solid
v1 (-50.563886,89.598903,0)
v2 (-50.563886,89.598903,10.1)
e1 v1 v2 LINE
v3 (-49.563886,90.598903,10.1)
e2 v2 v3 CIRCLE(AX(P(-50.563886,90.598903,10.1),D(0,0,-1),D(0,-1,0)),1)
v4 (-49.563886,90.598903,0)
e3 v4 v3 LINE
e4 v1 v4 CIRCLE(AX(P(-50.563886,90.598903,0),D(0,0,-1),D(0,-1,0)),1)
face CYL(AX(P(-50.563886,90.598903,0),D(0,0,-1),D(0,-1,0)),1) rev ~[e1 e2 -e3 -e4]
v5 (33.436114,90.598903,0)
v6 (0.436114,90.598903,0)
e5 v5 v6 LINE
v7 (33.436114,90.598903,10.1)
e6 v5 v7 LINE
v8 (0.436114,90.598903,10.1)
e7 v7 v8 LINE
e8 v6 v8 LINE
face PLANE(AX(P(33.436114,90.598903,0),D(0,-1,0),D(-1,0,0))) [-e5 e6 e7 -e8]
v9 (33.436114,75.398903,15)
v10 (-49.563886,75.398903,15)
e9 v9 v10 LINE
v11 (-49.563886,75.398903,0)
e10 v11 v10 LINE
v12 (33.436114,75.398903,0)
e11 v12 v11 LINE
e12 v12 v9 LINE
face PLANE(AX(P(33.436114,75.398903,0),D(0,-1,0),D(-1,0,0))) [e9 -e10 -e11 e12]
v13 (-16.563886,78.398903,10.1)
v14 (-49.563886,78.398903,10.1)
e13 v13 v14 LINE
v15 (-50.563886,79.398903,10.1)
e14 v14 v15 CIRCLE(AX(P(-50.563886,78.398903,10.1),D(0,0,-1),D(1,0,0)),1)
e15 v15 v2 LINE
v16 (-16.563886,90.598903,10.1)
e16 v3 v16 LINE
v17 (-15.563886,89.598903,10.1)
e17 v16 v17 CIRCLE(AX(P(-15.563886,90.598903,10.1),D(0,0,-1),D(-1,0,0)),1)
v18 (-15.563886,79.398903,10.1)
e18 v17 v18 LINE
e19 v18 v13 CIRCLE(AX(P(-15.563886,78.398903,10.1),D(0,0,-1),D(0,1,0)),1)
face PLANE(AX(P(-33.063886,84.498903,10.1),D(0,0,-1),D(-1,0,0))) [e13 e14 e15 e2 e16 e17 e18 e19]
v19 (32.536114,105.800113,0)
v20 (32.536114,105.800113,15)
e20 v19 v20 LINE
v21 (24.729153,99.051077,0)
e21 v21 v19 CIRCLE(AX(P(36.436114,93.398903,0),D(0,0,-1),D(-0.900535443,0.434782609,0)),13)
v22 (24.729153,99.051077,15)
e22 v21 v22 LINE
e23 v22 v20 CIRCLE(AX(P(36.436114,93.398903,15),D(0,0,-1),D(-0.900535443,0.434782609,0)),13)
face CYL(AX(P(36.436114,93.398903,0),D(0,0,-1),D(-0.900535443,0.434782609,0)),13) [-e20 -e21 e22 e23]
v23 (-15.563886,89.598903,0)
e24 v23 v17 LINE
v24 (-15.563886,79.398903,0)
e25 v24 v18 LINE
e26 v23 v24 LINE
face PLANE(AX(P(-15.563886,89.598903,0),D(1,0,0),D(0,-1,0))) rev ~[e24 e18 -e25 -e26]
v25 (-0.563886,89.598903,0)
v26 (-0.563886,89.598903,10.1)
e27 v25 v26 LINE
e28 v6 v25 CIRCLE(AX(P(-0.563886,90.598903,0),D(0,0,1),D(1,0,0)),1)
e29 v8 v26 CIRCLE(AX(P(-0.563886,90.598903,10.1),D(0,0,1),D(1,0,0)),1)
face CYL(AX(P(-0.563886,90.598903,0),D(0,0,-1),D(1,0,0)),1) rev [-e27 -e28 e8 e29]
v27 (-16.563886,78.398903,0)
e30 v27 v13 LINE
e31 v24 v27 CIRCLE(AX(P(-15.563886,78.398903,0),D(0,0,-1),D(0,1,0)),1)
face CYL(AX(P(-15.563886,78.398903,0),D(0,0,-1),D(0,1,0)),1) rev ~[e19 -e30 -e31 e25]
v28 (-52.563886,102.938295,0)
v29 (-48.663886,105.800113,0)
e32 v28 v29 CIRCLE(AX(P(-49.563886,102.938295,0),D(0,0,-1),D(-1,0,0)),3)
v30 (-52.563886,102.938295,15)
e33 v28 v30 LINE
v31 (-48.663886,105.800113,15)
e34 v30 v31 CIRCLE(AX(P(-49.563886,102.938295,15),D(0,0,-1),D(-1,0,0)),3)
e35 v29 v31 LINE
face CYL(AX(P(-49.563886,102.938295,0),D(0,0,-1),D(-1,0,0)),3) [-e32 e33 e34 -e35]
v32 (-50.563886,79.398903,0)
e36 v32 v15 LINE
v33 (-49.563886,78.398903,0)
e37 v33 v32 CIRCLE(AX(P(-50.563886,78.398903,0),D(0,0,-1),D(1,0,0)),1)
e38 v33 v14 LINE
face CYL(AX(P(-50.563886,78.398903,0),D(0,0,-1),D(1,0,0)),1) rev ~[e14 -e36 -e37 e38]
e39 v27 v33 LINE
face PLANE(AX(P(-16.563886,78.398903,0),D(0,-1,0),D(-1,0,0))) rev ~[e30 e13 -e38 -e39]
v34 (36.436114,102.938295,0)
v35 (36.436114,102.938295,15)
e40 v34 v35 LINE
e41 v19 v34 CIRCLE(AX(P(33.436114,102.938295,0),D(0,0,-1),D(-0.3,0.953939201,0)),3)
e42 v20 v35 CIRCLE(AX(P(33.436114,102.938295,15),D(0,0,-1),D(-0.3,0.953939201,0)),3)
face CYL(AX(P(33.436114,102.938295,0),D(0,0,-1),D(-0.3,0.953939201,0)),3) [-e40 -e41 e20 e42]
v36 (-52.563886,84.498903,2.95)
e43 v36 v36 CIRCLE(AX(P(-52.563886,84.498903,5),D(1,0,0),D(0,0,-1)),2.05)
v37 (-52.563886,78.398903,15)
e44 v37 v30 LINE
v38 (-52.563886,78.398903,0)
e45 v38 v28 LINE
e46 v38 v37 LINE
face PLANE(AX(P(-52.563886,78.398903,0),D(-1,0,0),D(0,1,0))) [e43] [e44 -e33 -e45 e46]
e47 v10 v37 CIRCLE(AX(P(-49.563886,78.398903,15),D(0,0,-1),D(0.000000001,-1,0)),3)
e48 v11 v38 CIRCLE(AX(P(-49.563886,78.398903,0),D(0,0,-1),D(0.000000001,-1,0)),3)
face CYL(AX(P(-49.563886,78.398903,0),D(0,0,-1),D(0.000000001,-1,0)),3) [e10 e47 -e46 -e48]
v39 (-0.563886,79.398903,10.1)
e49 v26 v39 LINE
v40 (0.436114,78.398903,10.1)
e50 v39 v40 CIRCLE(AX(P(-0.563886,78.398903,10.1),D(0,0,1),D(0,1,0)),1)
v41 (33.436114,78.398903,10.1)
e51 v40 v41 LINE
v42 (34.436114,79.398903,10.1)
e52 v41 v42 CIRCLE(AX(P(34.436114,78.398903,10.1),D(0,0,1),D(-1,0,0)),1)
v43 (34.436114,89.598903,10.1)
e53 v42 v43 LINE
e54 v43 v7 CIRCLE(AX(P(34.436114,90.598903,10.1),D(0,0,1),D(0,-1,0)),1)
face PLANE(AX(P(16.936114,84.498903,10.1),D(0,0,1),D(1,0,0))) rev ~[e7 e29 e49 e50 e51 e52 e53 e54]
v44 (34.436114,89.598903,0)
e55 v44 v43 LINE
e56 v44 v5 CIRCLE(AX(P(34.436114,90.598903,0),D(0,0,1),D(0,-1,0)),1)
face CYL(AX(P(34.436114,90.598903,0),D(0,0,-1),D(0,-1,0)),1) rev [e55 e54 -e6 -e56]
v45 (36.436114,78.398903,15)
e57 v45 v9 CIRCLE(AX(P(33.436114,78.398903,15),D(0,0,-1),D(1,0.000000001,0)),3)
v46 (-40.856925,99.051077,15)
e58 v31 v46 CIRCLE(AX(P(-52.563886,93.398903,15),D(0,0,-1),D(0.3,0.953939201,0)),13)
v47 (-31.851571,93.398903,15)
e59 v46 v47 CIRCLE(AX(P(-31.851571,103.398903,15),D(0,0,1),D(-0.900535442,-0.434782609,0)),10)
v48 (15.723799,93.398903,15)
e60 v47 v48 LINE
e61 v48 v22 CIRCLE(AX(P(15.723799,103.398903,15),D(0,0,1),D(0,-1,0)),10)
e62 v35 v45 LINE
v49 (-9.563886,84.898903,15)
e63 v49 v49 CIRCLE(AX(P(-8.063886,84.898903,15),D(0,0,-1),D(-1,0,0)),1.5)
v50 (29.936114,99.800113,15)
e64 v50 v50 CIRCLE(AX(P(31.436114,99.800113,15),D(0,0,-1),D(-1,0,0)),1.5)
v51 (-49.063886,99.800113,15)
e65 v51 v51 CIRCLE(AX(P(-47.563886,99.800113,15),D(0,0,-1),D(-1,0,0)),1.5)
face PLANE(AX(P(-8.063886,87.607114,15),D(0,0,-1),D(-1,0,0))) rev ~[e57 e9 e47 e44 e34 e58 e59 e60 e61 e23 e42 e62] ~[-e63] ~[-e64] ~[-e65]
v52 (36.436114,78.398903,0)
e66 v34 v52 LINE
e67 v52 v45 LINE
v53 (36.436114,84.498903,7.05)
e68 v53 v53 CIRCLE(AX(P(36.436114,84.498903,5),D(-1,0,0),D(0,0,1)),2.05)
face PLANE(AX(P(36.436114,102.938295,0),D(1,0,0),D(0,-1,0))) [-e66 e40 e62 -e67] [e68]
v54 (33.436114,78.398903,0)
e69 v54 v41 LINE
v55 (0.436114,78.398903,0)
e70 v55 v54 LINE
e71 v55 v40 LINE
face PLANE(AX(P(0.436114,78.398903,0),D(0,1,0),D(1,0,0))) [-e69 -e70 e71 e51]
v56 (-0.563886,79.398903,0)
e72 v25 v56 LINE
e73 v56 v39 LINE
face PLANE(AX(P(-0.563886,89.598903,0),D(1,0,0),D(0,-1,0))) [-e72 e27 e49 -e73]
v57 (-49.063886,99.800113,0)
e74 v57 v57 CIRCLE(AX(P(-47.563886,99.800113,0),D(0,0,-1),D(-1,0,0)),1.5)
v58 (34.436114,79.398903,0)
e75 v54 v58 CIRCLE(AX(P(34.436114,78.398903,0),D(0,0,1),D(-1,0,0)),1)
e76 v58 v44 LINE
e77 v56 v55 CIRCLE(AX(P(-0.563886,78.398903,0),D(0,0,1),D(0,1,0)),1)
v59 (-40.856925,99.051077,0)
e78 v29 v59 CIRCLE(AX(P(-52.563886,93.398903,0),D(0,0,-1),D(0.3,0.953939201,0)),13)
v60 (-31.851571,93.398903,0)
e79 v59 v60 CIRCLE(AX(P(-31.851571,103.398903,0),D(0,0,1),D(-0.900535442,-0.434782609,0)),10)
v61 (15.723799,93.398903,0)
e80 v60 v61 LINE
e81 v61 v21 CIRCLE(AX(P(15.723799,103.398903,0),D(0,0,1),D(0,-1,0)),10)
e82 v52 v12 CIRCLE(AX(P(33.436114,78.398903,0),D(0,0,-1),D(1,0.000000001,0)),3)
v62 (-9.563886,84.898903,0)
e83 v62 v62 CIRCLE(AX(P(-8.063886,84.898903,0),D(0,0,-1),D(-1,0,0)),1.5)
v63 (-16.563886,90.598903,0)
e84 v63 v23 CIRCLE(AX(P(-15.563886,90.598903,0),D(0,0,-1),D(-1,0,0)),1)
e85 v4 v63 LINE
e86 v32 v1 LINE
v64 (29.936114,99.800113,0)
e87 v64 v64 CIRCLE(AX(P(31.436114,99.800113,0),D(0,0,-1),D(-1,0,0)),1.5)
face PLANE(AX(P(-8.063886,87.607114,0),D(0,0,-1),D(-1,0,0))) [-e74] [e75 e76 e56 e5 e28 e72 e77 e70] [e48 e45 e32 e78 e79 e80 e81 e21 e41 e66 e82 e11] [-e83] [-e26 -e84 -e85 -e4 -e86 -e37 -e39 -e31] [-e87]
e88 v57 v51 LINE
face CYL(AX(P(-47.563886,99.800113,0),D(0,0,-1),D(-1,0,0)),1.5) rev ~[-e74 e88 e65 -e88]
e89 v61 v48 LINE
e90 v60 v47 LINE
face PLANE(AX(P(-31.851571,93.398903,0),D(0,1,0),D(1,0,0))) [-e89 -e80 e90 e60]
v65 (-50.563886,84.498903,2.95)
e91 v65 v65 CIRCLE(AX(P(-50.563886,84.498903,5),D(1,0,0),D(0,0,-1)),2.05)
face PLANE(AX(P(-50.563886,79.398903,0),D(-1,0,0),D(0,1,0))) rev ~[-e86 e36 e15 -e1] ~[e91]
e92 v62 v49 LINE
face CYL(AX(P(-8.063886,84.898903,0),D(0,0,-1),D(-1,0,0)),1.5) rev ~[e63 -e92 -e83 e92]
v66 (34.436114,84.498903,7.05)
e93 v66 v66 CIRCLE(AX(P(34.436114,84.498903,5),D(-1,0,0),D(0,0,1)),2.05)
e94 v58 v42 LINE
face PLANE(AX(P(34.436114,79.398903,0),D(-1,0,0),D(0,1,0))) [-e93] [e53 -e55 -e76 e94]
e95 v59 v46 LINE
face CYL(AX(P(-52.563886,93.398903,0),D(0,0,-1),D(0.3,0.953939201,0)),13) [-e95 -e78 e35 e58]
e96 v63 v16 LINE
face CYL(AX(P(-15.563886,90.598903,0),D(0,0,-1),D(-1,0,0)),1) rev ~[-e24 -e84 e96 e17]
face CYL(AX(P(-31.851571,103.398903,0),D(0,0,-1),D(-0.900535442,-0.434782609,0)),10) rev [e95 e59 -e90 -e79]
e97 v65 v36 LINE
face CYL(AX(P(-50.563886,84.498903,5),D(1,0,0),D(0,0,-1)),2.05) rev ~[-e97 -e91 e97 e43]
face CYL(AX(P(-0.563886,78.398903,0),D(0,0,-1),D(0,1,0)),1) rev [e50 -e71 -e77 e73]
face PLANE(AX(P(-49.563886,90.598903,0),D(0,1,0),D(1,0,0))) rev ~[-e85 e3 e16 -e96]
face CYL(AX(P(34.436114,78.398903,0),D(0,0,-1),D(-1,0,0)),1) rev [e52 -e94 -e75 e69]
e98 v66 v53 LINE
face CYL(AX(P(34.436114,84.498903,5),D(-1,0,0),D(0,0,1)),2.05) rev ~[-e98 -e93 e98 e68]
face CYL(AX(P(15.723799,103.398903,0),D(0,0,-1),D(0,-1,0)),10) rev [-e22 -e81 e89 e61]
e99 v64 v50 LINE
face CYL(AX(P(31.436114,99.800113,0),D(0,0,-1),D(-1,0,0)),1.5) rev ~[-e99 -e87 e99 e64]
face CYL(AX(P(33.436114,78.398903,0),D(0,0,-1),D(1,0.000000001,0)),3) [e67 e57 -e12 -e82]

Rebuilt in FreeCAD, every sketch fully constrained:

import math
import FreeCAD as App
import Part
import Sketcher
Q = App.Units.Quantity

doc = App.newDocument("Part")
body = doc.addObject("PartDesign::Body", "Body")

# Sketch on XY plane
sketch1 = body.newObject("Sketcher::SketchObject", "Sketch")
sketch1.AttachmentSupport = (doc.getObject("XY_Plane"), [""])
sketch1.MapMode = "FlatFace"
sketch1.addGeometry(Part.LineSegment(App.Vector(-49.6, 75.4, 0), App.Vector(33.4, 75.4, 0)), False)
sketch1.addGeometry(Part.ArcOfCircle(Part.Circle(App.Vector(33.4, 78.4, 0), App.Vector(0, 0, 1), 3), math.radians(-90), math.radians(0)), False)
sketch1.addGeometry(Part.LineSegment(App.Vector(36.4, 78.4, 0), App.Vector(36.4, 102.9, 0)), False)
sketch1.addGeometry(Part.ArcOfCircle(Part.Circle(App.Vector(33.4, 102.9, 0), App.Vector(0, 0, 1), 3), math.radians(0), math.radians(107)), False)
sketch1.addGeometry(Part.ArcOfCircle(Part.Circle(App.Vector(36.4, 93.4, 0), App.Vector(0, 0, 1), 13), math.radians(107), math.radians(154)), False)
sketch1.addGeometry(Part.ArcOfCircle(Part.Circle(App.Vector(15.7, 103.4, 0), App.Vector(0, 0, 1), 10), math.radians(-90), math.radians(-26)), False)
sketch1.addGeometry(Part.LineSegment(App.Vector(15.7, 93.4, 0), App.Vector(-31.9, 93.4, 0)), False)
sketch1.addGeometry(Part.ArcOfCircle(Part.Circle(App.Vector(-31.9, 103.4, 0), App.Vector(0, 0, 1), 10), math.radians(-154), math.radians(-90)), False)
sketch1.addGeometry(Part.ArcOfCircle(Part.Circle(App.Vector(-52.6, 93.4, 0), App.Vector(0, 0, 1), 13), math.radians(26), math.radians(73)), False)
sketch1.addGeometry(Part.ArcOfCircle(Part.Circle(App.Vector(-49.6, 102.9, 0), App.Vector(0, 0, 1), 3), math.radians(73), math.radians(180)), False)
sketch1.addGeometry(Part.LineSegment(App.Vector(-52.6, 102.9, 0), App.Vector(-52.6, 78.4, 0)), False)
sketch1.addGeometry(Part.ArcOfCircle(Part.Circle(App.Vector(-49.6, 78.4, 0), App.Vector(0, 0, 1), 3), math.radians(180), math.radians(270)), False)
sketch1.addConstraint(Sketcher.Constraint("Tangent", 0, 2, 1, 1))
sketch1.addConstraint(Sketcher.Constraint("Tangent", 1, 2, 2, 1))
sketch1.addConstraint(Sketcher.Constraint("Tangent", 2, 2, 3, 1))
sketch1.addConstraint(Sketcher.Constraint("Tangent", 3, 2, 4, 1))
sketch1.addConstraint(Sketcher.Constraint("Tangent", 4, 2, 5, 2))
sketch1.addConstraint(Sketcher.Constraint("Tangent", 5, 1, 6, 1))
sketch1.addConstraint(Sketcher.Constraint("Tangent", 6, 2, 7, 2))
sketch1.addConstraint(Sketcher.Constraint("Tangent", 7, 1, 8, 1))
sketch1.addConstraint(Sketcher.Constraint("Tangent", 8, 2, 9, 1))
sketch1.addConstraint(Sketcher.Constraint("Tangent", 9, 2, 10, 1))
sketch1.addConstraint(Sketcher.Constraint("Tangent", 10, 2, 11, 1))
sketch1.addConstraint(Sketcher.Constraint("Tangent", 11, 2, 0, 1))
sketch1.addConstraint(Sketcher.Constraint("Horizontal", 0))
sketch1.addConstraint(Sketcher.Constraint("Vertical", 2))
sketch1.addConstraint(Sketcher.Constraint("Horizontal", 6))
sketch1.addConstraint(Sketcher.Constraint("Vertical", 10))
sketch1.addConstraint(Sketcher.Constraint("Equal", 1, 3))
sketch1.addConstraint(Sketcher.Constraint("Equal", 5, 7))
sketch1.addConstraint(Sketcher.Constraint("Equal", 4, 8))
sketch1.addConstraint(Sketcher.Constraint("Equal", 3, 9))
sketch1.addConstraint(Sketcher.Constraint("Equal", 9, 11))
sketch1.addConstraint(Sketcher.Constraint("Horizontal", 4, 3, 8, 3))
sketch1.addConstraint(Sketcher.Constraint("Horizontal", 3, 3, 9, 3))
sketch1.addConstraint(Sketcher.Constraint("Horizontal", 8, 3, 5, 1))
sketch1.addConstraint(Sketcher.Constraint("Vertical", 4, 3, 1, 2))
sketch1.addConstraint(Sketcher.Constraint("Radius", 1, Q("3 mm")))
sketch1.addConstraint(Sketcher.Constraint("Radius", 4, Q("13 mm")))
sketch1.addConstraint(Sketcher.Constraint("Radius", 5, Q("10 mm")))
sketch1.addConstraint(Sketcher.Constraint("DistanceX", 0, 1, 0, 2, Q("83 mm")))
sketch1.addConstraint(Sketcher.Constraint("DistanceY", 1, 3, 4, 3, Q("15 mm")))
sketch1.addConstraint(Sketcher.Constraint("DistanceX", -1, 1, 5, 3, Q("15.723799 mm")))
sketch1.addConstraint(Sketcher.Constraint("DistanceY", -1, 1, 1, 3, Q("78.398903 mm")))
pad1 = body.newObject("PartDesign::Pad", "Pad")
pad1.Profile = sketch1
pad1.Length = 15

# Sketch on XY plane
sketch2 = body.newObject("Sketcher::SketchObject", "Sketch001")
sketch2.AttachmentSupport = (doc.getObject("XY_Plane"), [""])
sketch2.MapMode = "FlatFace"
sketch2.addGeometry(Part.LineSegment(App.Vector(-15.6, 89.6, 0), App.Vector(-15.6, 79.4, 0)), False)
sketch2.addGeometry(Part.ArcOfCircle(Part.Circle(App.Vector(-15.6, 78.4, 0), App.Vector(0, 0, 1), 1), math.radians(180), math.radians(450)), False)
sketch2.addGeometry(Part.LineSegment(App.Vector(-16.6, 78.4, 0), App.Vector(-49.6, 78.4, 0)), False)
sketch2.addGeometry(Part.ArcOfCircle(Part.Circle(App.Vector(-50.6, 78.4, 0), App.Vector(0, 0, 1), 1), math.radians(90), math.radians(360)), False)
sketch2.addGeometry(Part.LineSegment(App.Vector(-50.6, 79.4, 0), App.Vector(-50.6, 89.6, 0)), False)
sketch2.addGeometry(Part.ArcOfCircle(Part.Circle(App.Vector(-50.6, 90.6, 0), App.Vector(0, 0, 1), 1), math.radians(0), math.radians(270)), False)
sketch2.addGeometry(Part.LineSegment(App.Vector(-49.6, 90.6, 0), App.Vector(-16.6, 90.6, 0)), False)
sketch2.addGeometry(Part.ArcOfCircle(Part.Circle(App.Vector(-15.6, 90.6, 0), App.Vector(0, 0, 1), 1), math.radians(-90), math.radians(180)), False)
sketch2.addGeometry(Part.LineSegment(App.Vector(0.4, 90.6, 0), App.Vector(33.4, 90.6, 0)), False)
sketch2.addGeometry(Part.ArcOfCircle(Part.Circle(App.Vector(34.4, 90.6, 0), App.Vector(0, 0, 1), 1), math.radians(-90), math.radians(180)), False)
sketch2.addGeometry(Part.LineSegment(App.Vector(34.4, 89.6, 0), App.Vector(34.4, 79.4, 0)), False)
sketch2.addGeometry(Part.ArcOfCircle(Part.Circle(App.Vector(34.4, 78.4, 0), App.Vector(0, 0, 1), 1), math.radians(180), math.radians(450)), False)
sketch2.addGeometry(Part.LineSegment(App.Vector(33.4, 78.4, 0), App.Vector(0.4, 78.4, 0)), False)
sketch2.addGeometry(Part.ArcOfCircle(Part.Circle(App.Vector(-0.6, 78.4, 0), App.Vector(0, 0, 1), 1), math.radians(90), math.radians(360)), False)
sketch2.addGeometry(Part.LineSegment(App.Vector(-0.6, 79.4, 0), App.Vector(-0.6, 89.6, 0)), False)
sketch2.addGeometry(Part.ArcOfCircle(Part.Circle(App.Vector(-0.6, 90.6, 0), App.Vector(0, 0, 1), 1), math.radians(0), math.radians(270)), False)
sketch2.addConstraint(Sketcher.Constraint("Coincident", 0, 2, 1, 2))
sketch2.addConstraint(Sketcher.Constraint("Coincident", 1, 1, 2, 1))
sketch2.addConstraint(Sketcher.Constraint("Coincident", 2, 2, 3, 2))
sketch2.addConstraint(Sketcher.Constraint("Coincident", 3, 1, 4, 1))
sketch2.addConstraint(Sketcher.Constraint("Coincident", 4, 2, 5, 2))
sketch2.addConstraint(Sketcher.Constraint("Coincident", 5, 1, 6, 1))
sketch2.addConstraint(Sketcher.Constraint("Coincident", 6, 2, 7, 2))
sketch2.addConstraint(Sketcher.Constraint("Coincident", 7, 1, 0, 1))
sketch2.addConstraint(Sketcher.Constraint("Coincident", 8, 2, 9, 2))
sketch2.addConstraint(Sketcher.Constraint("Coincident", 9, 1, 10, 1))
sketch2.addConstraint(Sketcher.Constraint("Coincident", 10, 2, 11, 2))
sketch2.addConstraint(Sketcher.Constraint("Coincident", 11, 1, 12, 1))
sketch2.addConstraint(Sketcher.Constraint("Coincident", 12, 2, 13, 2))
sketch2.addConstraint(Sketcher.Constraint("Coincident", 13, 1, 14, 1))
sketch2.addConstraint(Sketcher.Constraint("Coincident", 14, 2, 15, 2))
sketch2.addConstraint(Sketcher.Constraint("Coincident", 15, 1, 8, 1))
sketch2.addConstraint(Sketcher.Constraint("Vertical", 0))
sketch2.addConstraint(Sketcher.Constraint("Horizontal", 2))
sketch2.addConstraint(Sketcher.Constraint("Vertical", 4))
sketch2.addConstraint(Sketcher.Constraint("Horizontal", 6))
sketch2.addConstraint(Sketcher.Constraint("Horizontal", 8))
sketch2.addConstraint(Sketcher.Constraint("Vertical", 10))
sketch2.addConstraint(Sketcher.Constraint("Horizontal", 12))
sketch2.addConstraint(Sketcher.Constraint("Vertical", 14))
sketch2.addConstraint(Sketcher.Constraint("Equal", 1, 3))
sketch2.addConstraint(Sketcher.Constraint("Equal", 3, 5))
sketch2.addConstraint(Sketcher.Constraint("Equal", 5, 7))
sketch2.addConstraint(Sketcher.Constraint("Equal", 7, 9))
sketch2.addConstraint(Sketcher.Constraint("Equal", 9, 11))
sketch2.addConstraint(Sketcher.Constraint("Equal", 11, 13))
sketch2.addConstraint(Sketcher.Constraint("Equal", 13, 15))
sketch2.addConstraint(Sketcher.Constraint("Horizontal", 1, 3, 3, 3))
sketch2.addConstraint(Sketcher.Constraint("Horizontal", 5, 3, 7, 3))
sketch2.addConstraint(Sketcher.Constraint("Horizontal", 7, 3, 9, 3))
sketch2.addConstraint(Sketcher.Constraint("Horizontal", 3, 3, 11, 3))
sketch2.addConstraint(Sketcher.Constraint("Horizontal", 11, 3, 13, 3))
sketch2.addConstraint(Sketcher.Constraint("Horizontal", 9, 3, 15, 3))
sketch2.addConstraint(Sketcher.Constraint("Horizontal", 13, 3, 1, 1))
sketch2.addConstraint(Sketcher.Constraint("Horizontal", 15, 3, 5, 1))
sketch2.addConstraint(Sketcher.Constraint("Horizontal", 6, 2, 8, 2))
sketch2.addConstraint(Sketcher.Constraint("Horizontal", 2, 2, 11, 1))
sketch2.addConstraint(Sketcher.Constraint("Vertical", 3, 3, 5, 3))
sketch2.addConstraint(Sketcher.Constraint("Vertical", 1, 3, 7, 3))
sketch2.addConstraint(Sketcher.Constraint("Vertical", 9, 3, 11, 3))
sketch2.addConstraint(Sketcher.Constraint("Vertical", 13, 3, 15, 3))
sketch2.addConstraint(Sketcher.Constraint("Vertical", 7, 3, 0, 2))
sketch2.addConstraint(Sketcher.Constraint("Vertical", 5, 3, 3, 1))
sketch2.addConstraint(Sketcher.Constraint("Vertical", 11, 3, 9, 1))
sketch2.addConstraint(Sketcher.Constraint("Vertical", 15, 3, 13, 1))
sketch2.addConstraint(Sketcher.Constraint("Equal", 6, 8))
sketch2.addConstraint(Sketcher.Constraint("Radius", 1, Q("1 mm")))
sketch2.addConstraint(Sketcher.Constraint("DistanceX", 2, 2, 2, 1, Q("33 mm")))
sketch2.addConstraint(Sketcher.Constraint("DistanceY", 0, 2, 0, 1, Q("10.2 mm")))
sketch2.addConstraint(Sketcher.Constraint("DistanceX", 7, 3, 9, 3, Q("50 mm")))
sketch2.addConstraint(Sketcher.Constraint("DistanceX", 1, 3, -1, 1, Q("15.563886 mm")))
sketch2.addConstraint(Sketcher.Constraint("DistanceY", -1, 1, 1, 3, Q("78.398903 mm")))
pocket1 = body.newObject("PartDesign::Pocket", "Pocket")
pocket1.Profile = sketch2
pocket1.Length = 10.1
pocket1.Reversed = True

# Sketch on XY plane
sketch3 = body.newObject("Sketcher::SketchObject", "Sketch002")
sketch3.AttachmentSupport = (doc.getObject("XY_Plane"), [""])
sketch3.MapMode = "FlatFace"
sketch3.addGeometry(Part.Circle(App.Vector(31.4, 99.8, 0), App.Vector(0, 0, 1), 1.5), False)
sketch3.addGeometry(Part.Circle(App.Vector(-47.6, 99.8, 0), App.Vector(0, 0, 1), 1.5), False)
sketch3.addGeometry(Part.Circle(App.Vector(-8.1, 84.9, 0), App.Vector(0, 0, 1), 1.5), False)
sketch3.addConstraint(Sketcher.Constraint("Equal", 0, 1))
sketch3.addConstraint(Sketcher.Constraint("Equal", 1, 2))
sketch3.addConstraint(Sketcher.Constraint("Horizontal", 0, 3, 1, 3))
sketch3.addConstraint(Sketcher.Constraint("Diameter", 0, Q("3 mm")))
sketch3.addConstraint(Sketcher.Constraint("DistanceX", 1, 3, 0, 3, Q("79 mm")))
sketch3.addConstraint(Sketcher.Constraint("DistanceX", 2, 3, 0, 3, Q("39.5 mm")))
sketch3.addConstraint(Sketcher.Constraint("DistanceY", 2, 3, 0, 3, Q("14.90121 mm")))
sketch3.addConstraint(Sketcher.Constraint("DistanceX", -1, 1, 0, 3, Q("31.436114 mm")))
sketch3.addConstraint(Sketcher.Constraint("DistanceY", -1, 1, 0, 3, Q("99.800113 mm")))
pocket2 = body.newObject("PartDesign::Pocket", "Pocket001")
pocket2.Profile = sketch3
pocket2.Type = "ThroughAll"
pocket2.Reversed = True

# Sketch on YZ plane
sketch4 = body.newObject("Sketcher::SketchObject", "Sketch003")
sketch4.AttachmentSupport = (doc.getObject("YZ_Plane"), [""])
sketch4.MapMode = "FlatFace"
sketch4.AttachmentOffset = App.Placement(App.Vector(0, 0, 34.436114), App.Rotation())
sketch4.addGeometry(Part.Circle(App.Vector(84.5, 5, 0), App.Vector(0, 0, 1), 2), False)
sketch4.addConstraint(Sketcher.Constraint("Diameter", 0, Q("4.1 mm")))
sketch4.addConstraint(Sketcher.Constraint("DistanceY", -1, 1, 0, 3, Q("5 mm")))
sketch4.addConstraint(Sketcher.Constraint("DistanceX", -1, 1, 0, 3, Q("84.498903 mm")))
pocket3 = body.newObject("PartDesign::Pocket", "Pocket002")
pocket3.Profile = sketch4
pocket3.Type = "ThroughAll"
pocket3.Reversed = True

# Sketch on YZ plane
sketch5 = body.newObject("Sketcher::SketchObject", "Sketch004")
sketch5.AttachmentSupport = (doc.getObject("YZ_Plane"), [""])
sketch5.MapMode = "FlatFace"
sketch5.AttachmentOffset = App.Placement(App.Vector(0, 0, -50.563886), App.Rotation())
sketch5.addGeometry(Part.Circle(App.Vector(84.5, 5, 0), App.Vector(0, 0, 1), 2), False)
sketch5.addConstraint(Sketcher.Constraint("Diameter", 0, Q("4.1 mm")))
sketch5.addConstraint(Sketcher.Constraint("DistanceY", -1, 1, 0, 3, Q("5 mm")))
sketch5.addConstraint(Sketcher.Constraint("DistanceX", -1, 1, 0, 3, Q("84.498903 mm")))
pocket4 = body.newObject("PartDesign::Pocket", "Pocket003")
pocket4.Profile = sketch5
pocket4.Type = "ThroughAll"

doc.recompute()
